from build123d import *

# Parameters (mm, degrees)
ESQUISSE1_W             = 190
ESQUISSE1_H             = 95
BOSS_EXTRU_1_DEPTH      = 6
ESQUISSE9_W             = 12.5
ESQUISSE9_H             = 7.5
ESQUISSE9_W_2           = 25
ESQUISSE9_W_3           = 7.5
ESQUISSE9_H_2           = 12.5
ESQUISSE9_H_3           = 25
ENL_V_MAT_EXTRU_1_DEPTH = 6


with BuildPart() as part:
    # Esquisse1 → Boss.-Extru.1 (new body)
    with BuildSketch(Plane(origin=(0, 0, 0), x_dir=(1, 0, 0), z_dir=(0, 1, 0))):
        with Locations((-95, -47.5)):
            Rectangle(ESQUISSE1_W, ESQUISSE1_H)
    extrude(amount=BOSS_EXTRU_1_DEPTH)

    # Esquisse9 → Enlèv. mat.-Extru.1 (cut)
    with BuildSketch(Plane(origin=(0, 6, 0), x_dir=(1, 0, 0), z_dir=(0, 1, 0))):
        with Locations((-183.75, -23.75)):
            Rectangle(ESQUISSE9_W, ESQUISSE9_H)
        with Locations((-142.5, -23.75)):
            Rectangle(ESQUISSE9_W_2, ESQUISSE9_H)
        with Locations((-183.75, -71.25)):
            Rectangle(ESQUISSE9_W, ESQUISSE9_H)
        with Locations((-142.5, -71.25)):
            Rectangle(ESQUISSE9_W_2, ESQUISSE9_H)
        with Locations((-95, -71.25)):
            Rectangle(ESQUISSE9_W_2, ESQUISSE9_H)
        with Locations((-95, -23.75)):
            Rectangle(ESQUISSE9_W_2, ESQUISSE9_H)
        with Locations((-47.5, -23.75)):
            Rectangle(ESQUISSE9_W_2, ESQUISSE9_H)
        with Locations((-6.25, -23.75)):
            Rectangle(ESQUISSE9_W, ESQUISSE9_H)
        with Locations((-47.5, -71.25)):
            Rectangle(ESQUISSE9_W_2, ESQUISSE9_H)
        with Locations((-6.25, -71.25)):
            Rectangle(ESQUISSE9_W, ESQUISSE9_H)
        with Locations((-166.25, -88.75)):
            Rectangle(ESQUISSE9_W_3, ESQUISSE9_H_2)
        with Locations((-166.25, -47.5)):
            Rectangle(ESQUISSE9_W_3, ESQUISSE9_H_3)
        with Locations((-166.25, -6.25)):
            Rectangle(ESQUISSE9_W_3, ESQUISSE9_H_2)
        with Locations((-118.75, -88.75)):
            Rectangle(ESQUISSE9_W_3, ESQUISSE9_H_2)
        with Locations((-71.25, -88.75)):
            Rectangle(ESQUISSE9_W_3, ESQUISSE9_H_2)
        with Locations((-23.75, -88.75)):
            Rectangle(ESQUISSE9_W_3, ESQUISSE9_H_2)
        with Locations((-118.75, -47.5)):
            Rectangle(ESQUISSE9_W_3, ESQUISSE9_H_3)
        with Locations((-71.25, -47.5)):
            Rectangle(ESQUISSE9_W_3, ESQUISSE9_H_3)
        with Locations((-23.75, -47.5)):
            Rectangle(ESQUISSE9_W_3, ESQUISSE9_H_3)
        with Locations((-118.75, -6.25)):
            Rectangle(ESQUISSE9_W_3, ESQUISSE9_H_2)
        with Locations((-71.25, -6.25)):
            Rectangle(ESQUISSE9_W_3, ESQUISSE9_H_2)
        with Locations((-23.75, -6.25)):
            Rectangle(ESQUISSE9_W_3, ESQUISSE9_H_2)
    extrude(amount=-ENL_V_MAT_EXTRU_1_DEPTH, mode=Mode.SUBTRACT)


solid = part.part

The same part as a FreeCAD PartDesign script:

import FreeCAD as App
import Part
import Sketcher

V = App.Vector
Q = App.Units.Quantity


def add_polygon(sketch, points):
    """Adds a closed chain of lines whose ends are joined by coincident constraints."""
    first, n = sketch.GeometryCount, len(points)
    for a, b in zip(points, points[1:] + points[:1]):
        sketch.addGeometry(Part.LineSegment(App.Vector(*a, 0), App.Vector(*b, 0)), False)
    for i in range(n):
        sketch.addConstraint(Sketcher.Constraint("Coincident", first + i, 2, first + (i + 1) % n, 1))

doc = App.newDocument("Part")
params = doc.addObject("Spreadsheet::Sheet", "Params")
for row, (alias, value) in enumerate([
    ("sketch1_width", "190 mm"),
    ("sketch1_height", "95 mm"),
    ("pad1_length", "6 mm"),
    ("sketch2_width", "25 mm"),
    ("sketch2_width2", "12.5 mm"),
    ("sketch2_width3", "7.5 mm"),
    ("pocket1_length", "6 mm"),
], start=1):
    params.set(f"A{row}", alias)
    params.set(f"B{row}", "=" + value)
    params.setAlias(f"B{row}", alias)

body = doc.addObject("PartDesign::Body", "Body")

sketch1 = body.newObject("Sketcher::SketchObject", "Sketch")
sketch1.AttachmentSupport = (doc.getObject("XZ_Plane"), [""])
sketch1.MapMode = "FlatFace"
add_polygon(sketch1, [(-190, 0), (-190, 95), (0, 95), (0, 0)])
sketch1.addConstraint(Sketcher.Constraint("Vertical", 0))
sketch1.addConstraint(Sketcher.Constraint("Horizontal", 1))
sketch1.addConstraint(Sketcher.Constraint("Vertical", 2))
sketch1.addConstraint(Sketcher.Constraint("Horizontal", 3))
sketch1.addConstraint(Sketcher.Constraint("Coincident", 2, 2, -1, 1))
sketch1.addConstraint(Sketcher.Constraint("DistanceX", 1, 1, 1, 2, Q("190 mm")))
sketch1.addConstraint(Sketcher.Constraint("DistanceY", 0, 1, 0, 2, Q("95 mm")))
sketch1.setExpression("Constraints[9]", "Params.sketch1_width")
sketch1.setExpression("Constraints[10]", "Params.sketch1_height")
pad1 = body.newObject("PartDesign::Pad", "Pad")
pad1.Profile = sketch1
pad1.setExpression("Length", "Params.pad1_length")
pad1.Reversed = True

sketch2 = body.newObject("Sketcher::SketchObject", "Sketch001")
sketch2.AttachmentSupport = (doc.getObject("XZ_Plane"), [""])
sketch2.MapMode = "FlatFace"
sketch2.AttachmentOffset = App.Placement(V(0, 0, -6), App.Rotation())
add_polygon(sketch2, [(-190, 20), (-190, 27.5), (-177.5, 27.5), (-177.5, 20)])
add_polygon(sketch2, [(-155, 20), (-155, 27.5), (-130, 27.5), (-130, 20)])
add_polygon(sketch2, [(-190, 67.5), (-190, 75), (-177.5, 75), (-177.5, 67.5)])
add_polygon(sketch2, [(-155, 67.5), (-155, 75), (-130, 75), (-130, 67.5)])
add_polygon(sketch2, [(-107.5, 67.5), (-107.5, 75), (-82.5, 75), (-82.5, 67.5)])
add_polygon(sketch2, [(-107.5, 20), (-107.5, 27.5), (-82.5, 27.5), (-82.5, 20)])
add_polygon(sketch2, [(-60, 20), (-60, 27.5), (-35, 27.5), (-35, 20)])
add_polygon(sketch2, [(-12.5, 20), (-12.5, 27.5), (0, 27.5), (0, 20)])
add_polygon(sketch2, [(-60, 67.5), (-60, 75), (-35, 75), (-35, 67.5)])
add_polygon(sketch2, [(-12.5, 67.5), (-12.5, 75), (0, 75), (0, 67.5)])
add_polygon(sketch2, [(-170, 82.5), (-170, 95), (-162.5, 95), (-162.5, 82.5)])
add_polygon(sketch2, [(-170, 35), (-170, 60), (-162.5, 60), (-162.5, 35)])
add_polygon(sketch2, [(-170, 0), (-170, 12.5), (-162.5, 12.5), (-162.5, 0)])
add_polygon(sketch2, [(-122.5, 82.5), (-122.5, 95), (-115, 95), (-115, 82.5)])
add_polygon(sketch2, [(-75, 82.5), (-75, 95), (-67.5, 95), (-67.5, 82.5)])
add_polygon(sketch2, [(-27.5, 82.5), (-27.5, 95), (-20, 95), (-20, 82.5)])
add_polygon(sketch2, [(-122.5, 35), (-122.5, 60), (-115, 60), (-115, 35)])
add_polygon(sketch2, [(-75, 35), (-75, 60), (-67.5, 60), (-67.5, 35)])
add_polygon(sketch2, [(-27.5, 35), (-27.5, 60), (-20, 60), (-20, 35)])
add_polygon(sketch2, [(-122.5, 0), (-122.5, 12.5), (-115, 12.5), (-115, 0)])
add_polygon(sketch2, [(-75, 0), (-75, 12.5), (-67.5, 12.5), (-67.5, 0)])
add_polygon(sketch2, [(-27.5, 0), (-27.5, 12.5), (-20, 12.5), (-20, 0)])
sketch2.addConstraint(Sketcher.Constraint("Vertical", 0))
sketch2.addConstraint(Sketcher.Constraint("Horizontal", 1))
sketch2.addConstraint(Sketcher.Constraint("Vertical", 2))
sketch2.addConstraint(Sketcher.Constraint("Horizontal", 3))
sketch2.addConstraint(Sketcher.Constraint("Vertical", 4))
sketch2.addConstraint(Sketcher.Constraint("Horizontal", 5))
sketch2.addConstraint(Sketcher.Constraint("Vertical", 6))
sketch2.addConstraint(Sketcher.Constraint("Horizontal", 7))
sketch2.addConstraint(Sketcher.Constraint("Vertical", 8))
sketch2.addConstraint(Sketcher.Constraint("Horizontal", 9))
sketch2.addConstraint(Sketcher.Constraint("Vertical", 10))
sketch2.addConstraint(Sketcher.Constraint("Horizontal", 11))
sketch2.addConstraint(Sketcher.Constraint("Vertical", 12))
sketch2.addConstraint(Sketcher.Constraint("Horizontal", 13))
sketch2.addConstraint(Sketcher.Constraint("Vertical", 14))
sketch2.addConstraint(Sketcher.Constraint("Horizontal", 15))
sketch2.addConstraint(Sketcher.Constraint("Vertical", 16))
sketch2.addConstraint(Sketcher.Constraint("Horizontal", 17))
sketch2.addConstraint(Sketcher.Constraint("Vertical", 18))
sketch2.addConstraint(Sketcher.Constraint("Horizontal", 19))
sketch2.addConstraint(Sketcher.Constraint("Vertical", 20))
sketch2.addConstraint(Sketcher.Constraint("Horizontal", 21))
sketch2.addConstraint(Sketcher.Constraint("Vertical", 22))
sketch2.addConstraint(Sketcher.Constraint("Horizontal", 23))
sketch2.addConstraint(Sketcher.Constraint("Vertical", 24))
sketch2.addConstraint(Sketcher.Constraint("Horizontal", 25))
sketch2.addConstraint(Sketcher.Constraint("Vertical", 26))
sketch2.addConstraint(Sketcher.Constraint("Horizontal", 27))
sketch2.addConstraint(Sketcher.Constraint("Vertical", 28))
sketch2.addConstraint(Sketcher.Constraint("Horizontal", 29))
sketch2.addConstraint(Sketcher.Constraint("Vertical", 30))
sketch2.addConstraint(Sketcher.Constraint("Horizontal", 31))
sketch2.addConstraint(Sketcher.Constraint("Vertical", 32))
sketch2.addConstraint(Sketcher.Constraint("Horizontal", 33))
sketch2.addConstraint(Sketcher.Constraint("Vertical", 34))
sketch2.addConstraint(Sketcher.Constraint("Horizontal", 35))
sketch2.addConstraint(Sketcher.Constraint("Vertical", 36))
sketch2.addConstraint(Sketcher.Constraint("Horizontal", 37))
sketch2.addConstraint(Sketcher.Constraint("Vertical", 38))
sketch2.addConstraint(Sketcher.Constraint("Horizontal", 39))
sketch2.addConstraint(Sketcher.Constraint("Vertical", 40))
sketch2.addConstraint(Sketcher.Constraint("Horizontal", 41))
sketch2.addConstraint(Sketcher.Constraint("Vertical", 42))
sketch2.addConstraint(Sketcher.Constraint("Horizontal", 43))
sketch2.addConstraint(Sketcher.Constraint("Vertical", 44))
sketch2.addConstraint(Sketcher.Constraint("Horizontal", 45))
sketch2.addConstraint(Sketcher.Constraint("Vertical", 46))
sketch2.addConstraint(Sketcher.Constraint("Horizontal", 47))
sketch2.addConstraint(Sketcher.Constraint("Vertical", 48))
sketch2.addConstraint(Sketcher.Constraint("Horizontal", 49))
sketch2.addConstraint(Sketcher.Constraint("Vertical", 50))
sketch2.addConstraint(Sketcher.Constraint("Horizontal", 51))
sketch2.addConstraint(Sketcher.Constraint("Vertical", 52))
sketch2.addConstraint(Sketcher.Constraint("Horizontal", 53))
sketch2.addConstraint(Sketcher.Constraint("Vertical", 54))
sketch2.addConstraint(Sketcher.Constraint("Horizontal", 55))
sketch2.addConstraint(Sketcher.Constraint("Vertical", 56))
sketch2.addConstraint(Sketcher.Constraint("Horizontal", 57))
sketch2.addConstraint(Sketcher.Constraint("Vertical", 58))
sketch2.addConstraint(Sketcher.Constraint("Horizontal", 59))
sketch2.addConstraint(Sketcher.Constraint("Vertical", 60))
sketch2.addConstraint(Sketcher.Constraint("Horizontal", 61))
sketch2.addConstraint(Sketcher.Constraint("Vertical", 62))
sketch2.addConstraint(Sketcher.Constraint("Horizontal", 63))
sketch2.addConstraint(Sketcher.Constraint("Vertical", 64))
sketch2.addConstraint(Sketcher.Constraint("Horizontal", 65))
sketch2.addConstraint(Sketcher.Constraint("Vertical", 66))
sketch2.addConstraint(Sketcher.Constraint("Horizontal", 67))
sketch2.addConstraint(Sketcher.Constraint("Vertical", 68))
sketch2.addConstraint(Sketcher.Constraint("Horizontal", 69))
sketch2.addConstraint(Sketcher.Constraint("Vertical", 70))
sketch2.addConstraint(Sketcher.Constraint("Horizontal", 71))
sketch2.addConstraint(Sketcher.Constraint("Vertical", 72))
sketch2.addConstraint(Sketcher.Constraint("Horizontal", 73))
sketch2.addConstraint(Sketcher.Constraint("Vertical", 74))
sketch2.addConstraint(Sketcher.Constraint("Horizontal", 75))
sketch2.addConstraint(Sketcher.Constraint("Vertical", 76))
sketch2.addConstraint(Sketcher.Constraint("Horizontal", 77))
sketch2.addConstraint(Sketcher.Constraint("Vertical", 78))
sketch2.addConstraint(Sketcher.Constraint("Horizontal", 79))
sketch2.addConstraint(Sketcher.Constraint("Vertical", 80))
sketch2.addConstraint(Sketcher.Constraint("Horizontal", 81))
sketch2.addConstraint(Sketcher.Constraint("Vertical", 82))
sketch2.addConstraint(Sketcher.Constraint("Horizontal", 83))
sketch2.addConstraint(Sketcher.Constraint("Vertical", 84))
sketch2.addConstraint(Sketcher.Constraint("Horizontal", 85))
sketch2.addConstraint(Sketcher.Constraint("Vertical", 86))
sketch2.addConstraint(Sketcher.Constraint("Horizontal", 87))
sketch2.addConstraint(Sketcher.Constraint("PointOnObject", 29, 2, -2))
sketch2.addConstraint(Sketcher.Constraint("PointOnObject", 37, 2, -2))
sketch2.addConstraint(Sketcher.Constraint("PointOnObject", 50, 2, -1))
sketch2.addConstraint(Sketcher.Constraint("PointOnObject", 78, 2, -1))
sketch2.addConstraint(Sketcher.Constraint("PointOnObject", 82, 2, -1))
sketch2.addConstraint(Sketcher.Constraint("PointOnObject", 86, 2, -1))
sketch2.addConstraint(Sketcher.Constraint("Horizontal", 1, 2, 4, 2))
sketch2.addConstraint(Sketcher.Constraint("Horizontal", 3, 2, 6, 2))
sketch2.addConstraint(Sketcher.Constraint("Horizontal", 9, 2, 12, 2))
sketch2.addConstraint(Sketcher.Constraint("Horizontal", 11, 2, 14, 2))
sketch2.addConstraint(Sketcher.Constraint("Horizontal", 13, 2, 16, 2))
sketch2.addConstraint(Sketcher.Constraint("Horizontal", 15, 2, 18, 2))
sketch2.addConstraint(Sketcher.Constraint("Horizontal", 5, 2, 20, 2))
sketch2.addConstraint(Sketcher.Constraint("Horizontal", 7, 2, 22, 2))
sketch2.addConstraint(Sketcher.Constraint("Horizontal", 21, 2, 24, 2))
sketch2.addConstraint(Sketcher.Constraint("Horizontal", 23, 2, 26, 2))
sketch2.addConstraint(Sketcher.Constraint("Horizontal", 25, 2, 28, 2))
sketch2.addConstraint(Sketcher.Constraint("Horizontal", 27, 2, 30, 2))
sketch2.addConstraint(Sketcher.Constraint("Horizontal", 17, 2, 32, 2))
sketch2.addConstraint(Sketcher.Constraint("Horizontal", 19, 2, 34, 2))
sketch2.addConstraint(Sketcher.Constraint("Horizontal", 33, 2, 36, 2))
sketch2.addConstraint(Sketcher.Constraint("Horizontal", 35, 2, 38, 2))
sketch2.addConstraint(Sketcher.Constraint("Horizontal", 41, 2, 52, 2))
sketch2.addConstraint(Sketcher.Constraint("Horizontal", 43, 2, 54, 2))
sketch2.addConstraint(Sketcher.Constraint("Horizontal", 53, 2, 56, 2))
sketch2.addConstraint(Sketcher.Constraint("Horizontal", 55, 2, 58, 2))
sketch2.addConstraint(Sketcher.Constraint("Horizontal", 57, 2, 60, 2))
sketch2.addConstraint(Sketcher.Constraint("Horizontal", 59, 2, 62, 2))
sketch2.addConstraint(Sketcher.Constraint("Horizontal", 45, 2, 64, 2))
sketch2.addConstraint(Sketcher.Constraint("Horizontal", 47, 2, 66, 2))
sketch2.addConstraint(Sketcher.Constraint("Horizontal", 65, 2, 68, 2))
sketch2.addConstraint(Sketcher.Constraint("Horizontal", 67, 2, 70, 2))
sketch2.addConstraint(Sketcher.Constraint("Horizontal", 69, 2, 72, 2))
sketch2.addConstraint(Sketcher.Constraint("Horizontal", 71, 2, 74, 2))
sketch2.addConstraint(Sketcher.Constraint("Horizontal", 49, 2, 76, 2))
sketch2.addConstraint(Sketcher.Constraint("Horizontal", 77, 2, 80, 2))
sketch2.addConstraint(Sketcher.Constraint("Horizontal", 81, 2, 84, 2))
sketch2.addConstraint(Sketcher.Constraint("Vertical", 3, 2, 8, 2))
sketch2.addConstraint(Sketcher.Constraint("Vertical", 2, 2, 9, 2))
sketch2.addConstraint(Sketcher.Constraint("Vertical", 7, 2, 12, 2))
sketch2.addConstraint(Sketcher.Constraint("Vertical", 6, 2, 13, 2))
sketch2.addConstraint(Sketcher.Constraint("Vertical", 19, 2, 20, 2))
sketch2.addConstraint(Sketcher.Constraint("Vertical", 18, 2, 21, 2))
sketch2.addConstraint(Sketcher.Constraint("Vertical", 27, 2, 32, 2))
sketch2.addConstraint(Sketcher.Constraint("Vertical", 26, 2, 33, 2))
sketch2.addConstraint(Sketcher.Constraint("Vertical", 31, 2, 36, 2))
sketch2.addConstraint(Sketcher.Constraint("Vertical", 43, 2, 44, 2))
sketch2.addConstraint(Sketcher.Constraint("Vertical", 42, 2, 45, 2))
sketch2.addConstraint(Sketcher.Constraint("Vertical", 47, 2, 48, 2))
sketch2.addConstraint(Sketcher.Constraint("Vertical", 46, 2, 49, 2))
sketch2.addConstraint(Sketcher.Constraint("Vertical", 55, 2, 64, 2))
sketch2.addConstraint(Sketcher.Constraint("Vertical", 54, 2, 65, 2))
sketch2.addConstraint(Sketcher.Constraint("Vertical", 59, 2, 68, 2))
sketch2.addConstraint(Sketcher.Constraint("Vertical", 58, 2, 69, 2))
sketch2.addConstraint(Sketcher.Constraint("Vertical", 63, 2, 72, 2))
sketch2.addConstraint(Sketcher.Constraint("Vertical", 62, 2, 73, 2))
sketch2.addConstraint(Sketcher.Constraint("Vertical", 67, 2, 76, 2))
sketch2.addConstraint(Sketcher.Constraint("Vertical", 66, 2, 77, 2))
sketch2.addConstraint(Sketcher.Constraint("Vertical", 71, 2, 80, 2))
sketch2.addConstraint(Sketcher.Constraint("Vertical", 70, 2, 81, 2))
sketch2.addConstraint(Sketcher.Constraint("Vertical", 75, 2, 84, 2))
sketch2.addConstraint(Sketcher.Constraint("Vertical", 74, 2, 85, 2))
sketch2.addConstraint(Sketcher.Constraint("Equal", 15, 17))
sketch2.addConstraint(Sketcher.Constraint("Equal", 23, 25))
sketch2.addConstraint(Sketcher.Constraint("Equal", 11, 29))
sketch2.addConstraint(Sketcher.Constraint("Equal", 51, 53))
sketch2.addConstraint(Sketcher.Constraint("Equal", 55, 57))
sketch2.addConstraint(Sketcher.Constraint("Equal", 59, 61))
sketch2.addConstraint(Sketcher.Constraint("Equal", 87, 0))
sketch2.addConstraint(Sketcher.Constraint("Equal", 6, 8))
sketch2.addConstraint(Sketcher.Constraint("Equal", 39, 40))
sketch2.addConstraint(Sketcher.Constraint("Equal", 35, 44))
sketch2.addConstraint(Sketcher.Constraint("Equal", 42, 48))
sketch2.addConstraint(Sketcher.Constraint("DistanceX", 5, 1, 5, 2, Q("25 mm")))
sketch2.addConstraint(Sketcher.Constraint("DistanceX", 1, 1, 1, 2, Q("12.5 mm")))
sketch2.addConstraint(Sketcher.Constraint("DistanceX", 41, 1, 41, 2, Q("7.5 mm")))
sketch2.addConstraint(Sketcher.Constraint("DistanceX", 0, 2, -1, 1, Q("190 mm")))
sketch2.addConstraint(Sketcher.Constraint("DistanceY", -1, 1, 2, 2, Q("20 mm")))
sketch2.addConstraint(Sketcher.Constraint("DistanceX", 4, 2, -1, 1, Q("155 mm")))
sketch2.addConstraint(Sketcher.Constraint("DistanceY", -1, 1, 8, 2, Q("75 mm")))
sketch2.addConstraint(Sketcher.Constraint("DistanceX", 24, 2, -1, 1, Q("60 mm")))
sketch2.addConstraint(Sketcher.Constraint("DistanceX", 40, 2, -1, 1, Q("170 mm")))
sketch2.addConstraint(Sketcher.Constraint("DistanceY", -1, 1, 40, 2, Q("95 mm")))
sketch2.addConstraint(Sketcher.Constraint("DistanceY", -1, 1, 44, 2, Q("60 mm")))
sketch2.addConstraint(Sketcher.Constraint("DistanceX", 53, 2, -1, 1, Q("115 mm")))
sketch2.addConstraint(Sketcher.Constraint("DistanceX", 56, 2, -1, 1, Q("75 mm")))
sketch2.addConstraint(Sketcher.Constraint("DistanceX", 61, 2, -1, 1, Q("20 mm")))
sketch2.addConstraint(Sketcher.Constraint("DistanceX", 16, 2, -1, 1, Q("107.5 mm")))
sketch2.setExpression("Constraints[249]", "Params.sketch2_width")
sketch2.setExpression("Constraints[250]", "Params.sketch2_width2")
sketch2.setExpression("Constraints[251]", "Params.sketch2_width3")
pocket1 = body.newObject("PartDesign::Pocket", "Pocket")
pocket1.Profile = sketch2
pocket1.setExpression("Length", "Params.pocket1_length")
pocket1.Reversed = True

doc.recompute()
